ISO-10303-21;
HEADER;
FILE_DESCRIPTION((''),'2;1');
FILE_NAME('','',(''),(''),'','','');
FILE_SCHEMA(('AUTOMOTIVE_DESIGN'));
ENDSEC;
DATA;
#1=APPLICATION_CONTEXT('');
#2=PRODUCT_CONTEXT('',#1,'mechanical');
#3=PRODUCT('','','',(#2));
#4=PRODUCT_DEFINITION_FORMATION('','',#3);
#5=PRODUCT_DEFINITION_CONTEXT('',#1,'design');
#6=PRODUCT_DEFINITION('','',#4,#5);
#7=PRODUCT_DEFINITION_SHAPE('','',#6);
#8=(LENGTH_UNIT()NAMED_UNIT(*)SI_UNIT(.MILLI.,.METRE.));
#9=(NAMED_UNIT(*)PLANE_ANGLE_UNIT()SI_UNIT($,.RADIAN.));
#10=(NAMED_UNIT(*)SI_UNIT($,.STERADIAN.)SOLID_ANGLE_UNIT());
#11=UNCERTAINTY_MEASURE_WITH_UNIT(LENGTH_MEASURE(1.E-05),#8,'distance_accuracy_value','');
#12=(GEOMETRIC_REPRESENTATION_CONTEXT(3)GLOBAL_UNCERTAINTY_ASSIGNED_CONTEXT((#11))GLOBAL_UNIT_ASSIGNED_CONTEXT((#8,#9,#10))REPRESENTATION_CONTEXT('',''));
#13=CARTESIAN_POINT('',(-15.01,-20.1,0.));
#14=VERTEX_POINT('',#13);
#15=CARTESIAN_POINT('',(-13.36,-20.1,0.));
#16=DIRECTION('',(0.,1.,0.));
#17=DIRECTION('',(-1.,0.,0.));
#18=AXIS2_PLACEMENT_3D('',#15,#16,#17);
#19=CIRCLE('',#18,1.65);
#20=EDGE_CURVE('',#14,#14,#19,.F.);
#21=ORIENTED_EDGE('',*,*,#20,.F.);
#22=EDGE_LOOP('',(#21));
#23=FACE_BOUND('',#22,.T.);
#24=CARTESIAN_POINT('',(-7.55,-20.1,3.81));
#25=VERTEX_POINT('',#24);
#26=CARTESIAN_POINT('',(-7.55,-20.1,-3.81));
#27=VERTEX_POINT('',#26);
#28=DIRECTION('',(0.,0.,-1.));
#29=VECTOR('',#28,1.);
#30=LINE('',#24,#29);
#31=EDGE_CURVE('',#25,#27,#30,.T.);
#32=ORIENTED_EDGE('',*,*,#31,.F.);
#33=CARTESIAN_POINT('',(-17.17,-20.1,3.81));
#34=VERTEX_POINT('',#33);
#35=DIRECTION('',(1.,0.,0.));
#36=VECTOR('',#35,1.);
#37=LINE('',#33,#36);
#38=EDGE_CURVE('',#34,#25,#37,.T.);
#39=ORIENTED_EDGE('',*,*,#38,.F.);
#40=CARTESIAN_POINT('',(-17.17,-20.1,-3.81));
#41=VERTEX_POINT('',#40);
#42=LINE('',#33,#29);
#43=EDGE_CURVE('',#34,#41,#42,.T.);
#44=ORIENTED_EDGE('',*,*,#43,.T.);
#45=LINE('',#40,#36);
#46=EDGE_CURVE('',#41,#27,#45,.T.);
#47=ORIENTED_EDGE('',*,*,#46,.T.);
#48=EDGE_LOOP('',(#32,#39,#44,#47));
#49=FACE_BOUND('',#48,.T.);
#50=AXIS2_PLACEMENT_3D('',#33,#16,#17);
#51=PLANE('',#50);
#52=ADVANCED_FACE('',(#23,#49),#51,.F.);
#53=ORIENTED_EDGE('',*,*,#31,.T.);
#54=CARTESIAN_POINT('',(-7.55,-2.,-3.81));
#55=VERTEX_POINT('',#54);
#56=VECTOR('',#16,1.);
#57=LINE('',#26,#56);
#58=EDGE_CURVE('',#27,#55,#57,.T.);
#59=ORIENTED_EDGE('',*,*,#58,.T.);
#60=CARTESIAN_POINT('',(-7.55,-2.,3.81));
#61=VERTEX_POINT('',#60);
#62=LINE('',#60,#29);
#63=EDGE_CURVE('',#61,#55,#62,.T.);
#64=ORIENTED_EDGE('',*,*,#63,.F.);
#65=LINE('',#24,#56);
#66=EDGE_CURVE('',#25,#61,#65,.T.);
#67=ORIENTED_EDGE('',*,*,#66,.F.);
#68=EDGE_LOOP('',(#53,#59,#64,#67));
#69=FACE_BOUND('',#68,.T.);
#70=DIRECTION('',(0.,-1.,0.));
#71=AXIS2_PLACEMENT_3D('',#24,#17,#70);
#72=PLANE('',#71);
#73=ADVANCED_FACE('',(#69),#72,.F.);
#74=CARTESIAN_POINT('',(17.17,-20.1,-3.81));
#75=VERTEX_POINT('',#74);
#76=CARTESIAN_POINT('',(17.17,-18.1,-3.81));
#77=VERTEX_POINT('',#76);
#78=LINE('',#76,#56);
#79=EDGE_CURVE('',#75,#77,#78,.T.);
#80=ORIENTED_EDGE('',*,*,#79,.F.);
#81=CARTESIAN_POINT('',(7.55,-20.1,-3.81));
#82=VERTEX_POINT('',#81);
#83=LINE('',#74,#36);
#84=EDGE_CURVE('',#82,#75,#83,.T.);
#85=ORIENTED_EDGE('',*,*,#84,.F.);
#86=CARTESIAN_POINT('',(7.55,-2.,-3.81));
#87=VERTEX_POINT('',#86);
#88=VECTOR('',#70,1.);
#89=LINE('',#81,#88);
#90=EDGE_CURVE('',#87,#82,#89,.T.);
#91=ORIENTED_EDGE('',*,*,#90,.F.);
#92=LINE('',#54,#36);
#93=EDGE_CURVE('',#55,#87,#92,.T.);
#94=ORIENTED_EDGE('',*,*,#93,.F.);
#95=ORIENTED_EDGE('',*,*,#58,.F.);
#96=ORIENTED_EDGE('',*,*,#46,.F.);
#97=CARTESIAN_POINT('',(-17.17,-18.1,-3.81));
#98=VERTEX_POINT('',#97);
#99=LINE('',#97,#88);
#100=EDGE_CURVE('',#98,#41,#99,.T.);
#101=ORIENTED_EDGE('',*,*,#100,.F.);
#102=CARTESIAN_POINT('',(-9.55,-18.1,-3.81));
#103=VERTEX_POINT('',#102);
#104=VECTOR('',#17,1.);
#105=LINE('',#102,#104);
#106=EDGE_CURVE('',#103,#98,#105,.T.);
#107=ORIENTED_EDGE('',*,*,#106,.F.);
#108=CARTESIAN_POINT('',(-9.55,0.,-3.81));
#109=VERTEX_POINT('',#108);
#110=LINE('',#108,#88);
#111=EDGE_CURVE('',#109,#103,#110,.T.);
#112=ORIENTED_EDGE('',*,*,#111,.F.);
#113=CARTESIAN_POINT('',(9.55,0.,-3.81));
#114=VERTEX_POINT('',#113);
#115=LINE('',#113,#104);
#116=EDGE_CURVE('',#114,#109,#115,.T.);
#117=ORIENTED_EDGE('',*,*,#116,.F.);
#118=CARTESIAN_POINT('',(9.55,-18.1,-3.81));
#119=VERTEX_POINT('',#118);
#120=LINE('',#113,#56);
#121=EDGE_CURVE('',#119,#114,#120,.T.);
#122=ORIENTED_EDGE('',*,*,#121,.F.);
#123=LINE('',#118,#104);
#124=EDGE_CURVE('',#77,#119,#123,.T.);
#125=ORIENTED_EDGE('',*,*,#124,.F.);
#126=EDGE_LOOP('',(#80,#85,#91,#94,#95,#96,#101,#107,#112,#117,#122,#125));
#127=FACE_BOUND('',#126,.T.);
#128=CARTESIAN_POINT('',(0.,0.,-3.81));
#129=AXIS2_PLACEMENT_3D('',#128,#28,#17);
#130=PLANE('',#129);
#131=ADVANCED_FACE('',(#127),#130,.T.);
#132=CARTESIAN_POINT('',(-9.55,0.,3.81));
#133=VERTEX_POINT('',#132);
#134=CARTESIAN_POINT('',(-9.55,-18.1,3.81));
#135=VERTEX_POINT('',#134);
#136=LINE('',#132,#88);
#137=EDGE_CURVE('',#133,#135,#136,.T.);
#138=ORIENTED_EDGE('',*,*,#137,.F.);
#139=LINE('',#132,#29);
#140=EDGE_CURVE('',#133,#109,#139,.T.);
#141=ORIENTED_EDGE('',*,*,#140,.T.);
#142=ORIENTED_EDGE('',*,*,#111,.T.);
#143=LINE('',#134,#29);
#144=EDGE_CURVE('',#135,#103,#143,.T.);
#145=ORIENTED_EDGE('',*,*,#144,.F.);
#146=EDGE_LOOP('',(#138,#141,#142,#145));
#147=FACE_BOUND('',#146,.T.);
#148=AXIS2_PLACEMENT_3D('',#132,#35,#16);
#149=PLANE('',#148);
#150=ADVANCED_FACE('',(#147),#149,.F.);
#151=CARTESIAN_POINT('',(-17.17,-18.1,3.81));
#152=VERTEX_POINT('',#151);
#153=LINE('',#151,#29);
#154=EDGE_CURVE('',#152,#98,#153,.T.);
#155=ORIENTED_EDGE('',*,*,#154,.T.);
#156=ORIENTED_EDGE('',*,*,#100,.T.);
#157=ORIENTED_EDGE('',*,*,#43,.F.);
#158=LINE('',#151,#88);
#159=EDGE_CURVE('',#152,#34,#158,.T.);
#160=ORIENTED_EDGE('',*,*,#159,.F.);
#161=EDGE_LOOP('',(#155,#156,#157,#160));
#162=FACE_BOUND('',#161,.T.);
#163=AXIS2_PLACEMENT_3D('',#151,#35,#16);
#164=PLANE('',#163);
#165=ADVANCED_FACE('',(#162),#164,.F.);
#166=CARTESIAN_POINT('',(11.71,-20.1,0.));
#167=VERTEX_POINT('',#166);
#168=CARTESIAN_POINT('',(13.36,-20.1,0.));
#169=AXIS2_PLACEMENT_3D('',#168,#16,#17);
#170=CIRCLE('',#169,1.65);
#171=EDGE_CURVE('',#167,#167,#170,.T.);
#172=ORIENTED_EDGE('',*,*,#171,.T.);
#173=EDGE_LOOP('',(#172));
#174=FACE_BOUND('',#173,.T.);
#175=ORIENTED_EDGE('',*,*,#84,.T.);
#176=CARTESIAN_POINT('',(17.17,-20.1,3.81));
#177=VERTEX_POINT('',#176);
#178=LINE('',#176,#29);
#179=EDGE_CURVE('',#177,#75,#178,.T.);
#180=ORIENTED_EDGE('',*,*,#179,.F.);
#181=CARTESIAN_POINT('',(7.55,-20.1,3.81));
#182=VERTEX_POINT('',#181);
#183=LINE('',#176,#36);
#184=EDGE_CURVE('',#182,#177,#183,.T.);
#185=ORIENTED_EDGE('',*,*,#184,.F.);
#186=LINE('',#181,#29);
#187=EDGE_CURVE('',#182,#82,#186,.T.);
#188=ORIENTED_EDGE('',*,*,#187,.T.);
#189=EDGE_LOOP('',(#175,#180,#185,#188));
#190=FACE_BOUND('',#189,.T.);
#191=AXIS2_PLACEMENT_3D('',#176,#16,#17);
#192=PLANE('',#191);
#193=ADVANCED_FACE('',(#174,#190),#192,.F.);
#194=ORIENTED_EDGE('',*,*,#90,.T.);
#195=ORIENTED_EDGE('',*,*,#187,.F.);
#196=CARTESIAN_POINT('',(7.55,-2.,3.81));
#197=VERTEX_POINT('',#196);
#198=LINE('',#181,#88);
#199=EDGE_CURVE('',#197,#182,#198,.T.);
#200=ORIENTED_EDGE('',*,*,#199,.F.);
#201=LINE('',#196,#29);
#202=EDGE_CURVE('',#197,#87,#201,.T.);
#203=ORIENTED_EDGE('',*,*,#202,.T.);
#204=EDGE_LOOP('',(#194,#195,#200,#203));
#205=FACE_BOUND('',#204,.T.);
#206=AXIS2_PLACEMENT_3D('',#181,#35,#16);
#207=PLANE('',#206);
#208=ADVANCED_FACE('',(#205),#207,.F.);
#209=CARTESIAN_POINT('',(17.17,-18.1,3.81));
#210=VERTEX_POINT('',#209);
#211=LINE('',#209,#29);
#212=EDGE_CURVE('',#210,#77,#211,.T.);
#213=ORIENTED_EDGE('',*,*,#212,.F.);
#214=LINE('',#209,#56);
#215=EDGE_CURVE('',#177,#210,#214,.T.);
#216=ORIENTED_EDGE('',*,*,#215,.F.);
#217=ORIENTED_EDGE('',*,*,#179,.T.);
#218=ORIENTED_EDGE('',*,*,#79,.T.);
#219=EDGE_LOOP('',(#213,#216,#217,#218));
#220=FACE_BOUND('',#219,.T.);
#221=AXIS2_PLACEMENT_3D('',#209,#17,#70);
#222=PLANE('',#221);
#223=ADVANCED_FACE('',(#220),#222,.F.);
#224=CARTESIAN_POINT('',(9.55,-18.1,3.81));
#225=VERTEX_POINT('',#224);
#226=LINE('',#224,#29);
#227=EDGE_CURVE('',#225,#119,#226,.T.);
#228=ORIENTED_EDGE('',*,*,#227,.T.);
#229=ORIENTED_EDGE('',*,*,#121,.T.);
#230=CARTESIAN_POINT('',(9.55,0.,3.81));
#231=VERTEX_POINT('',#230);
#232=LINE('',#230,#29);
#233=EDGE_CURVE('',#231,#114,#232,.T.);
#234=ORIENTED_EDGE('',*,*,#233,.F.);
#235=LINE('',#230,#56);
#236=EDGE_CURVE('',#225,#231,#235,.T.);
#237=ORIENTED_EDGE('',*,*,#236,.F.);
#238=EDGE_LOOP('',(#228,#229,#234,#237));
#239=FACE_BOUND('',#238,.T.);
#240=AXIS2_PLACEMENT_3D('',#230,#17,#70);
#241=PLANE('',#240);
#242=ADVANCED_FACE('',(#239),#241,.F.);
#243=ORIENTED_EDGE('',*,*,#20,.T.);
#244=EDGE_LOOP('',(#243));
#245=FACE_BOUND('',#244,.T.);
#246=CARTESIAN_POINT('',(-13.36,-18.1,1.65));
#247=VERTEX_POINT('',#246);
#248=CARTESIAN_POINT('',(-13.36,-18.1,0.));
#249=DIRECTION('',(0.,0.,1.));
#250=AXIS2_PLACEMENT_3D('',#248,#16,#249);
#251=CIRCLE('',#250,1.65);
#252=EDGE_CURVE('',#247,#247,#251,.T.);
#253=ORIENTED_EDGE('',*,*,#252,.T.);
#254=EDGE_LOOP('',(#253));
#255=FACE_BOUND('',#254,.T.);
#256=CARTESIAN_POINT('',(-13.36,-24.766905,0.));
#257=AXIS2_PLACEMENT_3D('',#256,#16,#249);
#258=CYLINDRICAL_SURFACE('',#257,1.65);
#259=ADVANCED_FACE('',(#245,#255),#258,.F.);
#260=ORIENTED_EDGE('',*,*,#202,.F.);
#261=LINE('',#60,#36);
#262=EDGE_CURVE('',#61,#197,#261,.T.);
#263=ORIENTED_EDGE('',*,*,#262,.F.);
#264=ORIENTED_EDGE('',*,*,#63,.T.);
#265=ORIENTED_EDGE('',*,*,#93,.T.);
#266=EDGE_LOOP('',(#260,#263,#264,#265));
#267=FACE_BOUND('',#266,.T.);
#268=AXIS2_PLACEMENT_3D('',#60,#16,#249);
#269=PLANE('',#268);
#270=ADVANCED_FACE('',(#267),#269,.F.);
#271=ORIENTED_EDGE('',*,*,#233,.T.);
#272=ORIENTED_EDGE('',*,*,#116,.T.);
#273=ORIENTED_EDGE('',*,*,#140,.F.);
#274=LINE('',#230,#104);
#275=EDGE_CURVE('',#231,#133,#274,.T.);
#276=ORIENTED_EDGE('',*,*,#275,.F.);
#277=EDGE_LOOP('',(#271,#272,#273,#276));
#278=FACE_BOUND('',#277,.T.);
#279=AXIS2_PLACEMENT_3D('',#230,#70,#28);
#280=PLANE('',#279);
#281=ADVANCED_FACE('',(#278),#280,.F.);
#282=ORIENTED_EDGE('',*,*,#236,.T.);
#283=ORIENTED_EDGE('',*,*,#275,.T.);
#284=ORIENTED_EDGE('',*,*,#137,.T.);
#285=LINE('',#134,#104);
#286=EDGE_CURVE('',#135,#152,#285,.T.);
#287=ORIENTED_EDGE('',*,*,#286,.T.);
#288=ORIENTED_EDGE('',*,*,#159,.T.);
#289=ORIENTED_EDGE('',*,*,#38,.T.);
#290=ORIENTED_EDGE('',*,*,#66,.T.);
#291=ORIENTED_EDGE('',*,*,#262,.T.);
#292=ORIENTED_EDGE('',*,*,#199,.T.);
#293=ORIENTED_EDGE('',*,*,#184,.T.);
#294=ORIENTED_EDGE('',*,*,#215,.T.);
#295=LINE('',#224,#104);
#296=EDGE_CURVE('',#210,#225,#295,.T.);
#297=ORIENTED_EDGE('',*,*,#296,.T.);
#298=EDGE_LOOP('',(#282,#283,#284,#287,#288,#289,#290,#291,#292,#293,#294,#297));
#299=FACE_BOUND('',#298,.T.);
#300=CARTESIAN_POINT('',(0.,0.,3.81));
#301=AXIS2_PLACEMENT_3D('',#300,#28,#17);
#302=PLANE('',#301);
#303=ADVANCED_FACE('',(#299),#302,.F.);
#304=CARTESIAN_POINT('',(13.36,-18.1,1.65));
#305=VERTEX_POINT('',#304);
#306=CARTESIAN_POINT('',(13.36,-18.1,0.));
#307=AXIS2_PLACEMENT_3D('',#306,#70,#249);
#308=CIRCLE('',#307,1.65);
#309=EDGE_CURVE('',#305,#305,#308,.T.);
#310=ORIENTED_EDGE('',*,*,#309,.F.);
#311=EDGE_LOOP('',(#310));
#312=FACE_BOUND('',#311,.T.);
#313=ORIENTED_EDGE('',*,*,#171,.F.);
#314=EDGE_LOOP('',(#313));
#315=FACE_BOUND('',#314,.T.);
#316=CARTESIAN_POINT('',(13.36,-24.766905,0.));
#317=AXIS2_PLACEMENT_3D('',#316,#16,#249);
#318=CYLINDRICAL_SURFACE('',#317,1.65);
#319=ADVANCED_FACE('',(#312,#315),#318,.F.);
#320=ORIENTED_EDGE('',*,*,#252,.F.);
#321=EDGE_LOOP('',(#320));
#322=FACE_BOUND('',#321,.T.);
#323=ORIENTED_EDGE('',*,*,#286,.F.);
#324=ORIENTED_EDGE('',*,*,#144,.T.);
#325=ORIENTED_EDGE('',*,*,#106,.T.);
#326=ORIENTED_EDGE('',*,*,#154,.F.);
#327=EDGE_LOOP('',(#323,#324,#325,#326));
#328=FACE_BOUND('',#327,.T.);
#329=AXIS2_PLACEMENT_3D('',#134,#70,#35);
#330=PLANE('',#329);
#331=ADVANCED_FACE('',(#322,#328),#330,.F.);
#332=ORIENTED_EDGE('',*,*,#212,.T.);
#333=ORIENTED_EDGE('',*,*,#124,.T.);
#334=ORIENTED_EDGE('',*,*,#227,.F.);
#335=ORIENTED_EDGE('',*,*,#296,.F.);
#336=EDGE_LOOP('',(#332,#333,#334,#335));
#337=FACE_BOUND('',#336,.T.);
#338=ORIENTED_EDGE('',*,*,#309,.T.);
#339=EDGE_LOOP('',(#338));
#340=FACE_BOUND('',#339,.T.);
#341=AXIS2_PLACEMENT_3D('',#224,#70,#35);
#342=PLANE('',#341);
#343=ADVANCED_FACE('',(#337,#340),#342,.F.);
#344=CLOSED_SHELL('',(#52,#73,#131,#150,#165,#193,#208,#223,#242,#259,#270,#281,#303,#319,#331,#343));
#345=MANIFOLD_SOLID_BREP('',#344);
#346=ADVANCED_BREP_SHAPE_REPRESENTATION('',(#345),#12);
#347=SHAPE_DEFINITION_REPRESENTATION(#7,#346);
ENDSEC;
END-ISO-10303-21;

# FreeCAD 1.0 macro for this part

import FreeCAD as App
import Part
import Sketcher
from FreeCAD import Vector
Q = App.Units.Quantity


def add_polygon(sketch, points):
    """Adds a closed chain of lines whose ends are joined by coincident constraints."""
    first, n = sketch.GeometryCount, len(points)
    for a, b in zip(points, points[1:] + points[:1]):
        sketch.addGeometry(Part.LineSegment(App.Vector(*a, 0), App.Vector(*b, 0)), False)
    for i in range(n):
        sketch.addConstraint(Sketcher.Constraint("Coincident", first + i, 2, first + (i + 1) % n, 1))

doc = App.newDocument("Part")
body = doc.addObject("PartDesign::Body", "Body")

sketch1 = body.newObject("Sketcher::SketchObject", "Sketch")
sketch1.AttachmentSupport = (doc.getObject("XY_Plane"), [""])
sketch1.MapMode = "FlatFace"
add_polygon(sketch1, [(9.55, 0), (-9.55, 0), (-9.55, -18.1), (-17.17, -18.1), (-17.17, -20.1), (-7.55, -20.1), (-7.55, -2), (7.55, -2), (7.55, -20.1), (17.17, -20.1), (17.17, -18.1), (9.55, -18.1)])
sketch1.addConstraint([
    Sketcher.Constraint("Horizontal", 0),
    Sketcher.Constraint("Vertical", 1),
    Sketcher.Constraint("Horizontal", 2),
    Sketcher.Constraint("Vertical", 3),
    Sketcher.Constraint("Horizontal", 4),
    Sketcher.Constraint("Vertical", 5),
    Sketcher.Constraint("Horizontal", 6),
    Sketcher.Constraint("Vertical", 7),
    Sketcher.Constraint("Horizontal", 8),
    Sketcher.Constraint("Vertical", 9),
    Sketcher.Constraint("Horizontal", 10),
    Sketcher.Constraint("Vertical", 11),
    Sketcher.Constraint("Symmetric", 0, 2, 11, 2, -1, 1),
    Sketcher.Constraint("Symmetric", 4, 2, 7, 2, -2),
    Sketcher.Constraint("Symmetric", 2, 2, 9, 2, -2),
    Sketcher.Constraint("Equal", 1, 5),
    Sketcher.Constraint("DistanceY", 3, 2, 3, 1, Q("2 mm")),
    Sketcher.Constraint("DistanceX", 0, 2, 0, 1, Q("19.1 mm")),
    Sketcher.Constraint("DistanceX", 6, 1, 6, 2, Q("15.1 mm")),
    Sketcher.Constraint("DistanceY", 1, 2, 1, 1, Q("18.1 mm")),
    Sketcher.Constraint("DistanceX", 2, 2, 2, 1, Q("7.62 mm")),
])
pad1 = body.newObject("PartDesign::Pad", "Pad")
pad1.Profile = sketch1
pad1.Length = 7.62
pad1.Midplane = True

sketch2 = body.newObject("Sketcher::SketchObject", "Sketch001")
sketch2.AttachmentSupport = (doc.getObject("XZ_Plane"), [""])
sketch2.MapMode = "FlatFace"
sketch2.AttachmentOffset = App.Placement(Vector(0, 0, 18.1), App.Rotation())
sketch2.addGeometry(Part.Circle(Vector(-13.36, 0, 0), Vector(0, 0, 1), 1.65), False)
sketch2.addConstraint([
    Sketcher.Constraint("PointOnObject", 0, 3, -1),
    Sketcher.Constraint("Diameter", 0, Q("3.3 mm")),
    Sketcher.Constraint("DistanceX", 0, 3, -1, 1, Q("13.36 mm")),
])
pocket1 = body.newObject("PartDesign::Pocket", "Pocket")
pocket1.Profile = sketch2
pocket1.Length = 2
pocket1.Reversed = True
doc.recompute()

mirrored = body.newObject("PartDesign::Mirrored", "Mirrored")
mirrored.Originals = [pocket1]
mirrored.MirrorPlane = (doc.getObject("YZ_Plane"), [""])
body.Tip = mirrored

doc.recompute()
